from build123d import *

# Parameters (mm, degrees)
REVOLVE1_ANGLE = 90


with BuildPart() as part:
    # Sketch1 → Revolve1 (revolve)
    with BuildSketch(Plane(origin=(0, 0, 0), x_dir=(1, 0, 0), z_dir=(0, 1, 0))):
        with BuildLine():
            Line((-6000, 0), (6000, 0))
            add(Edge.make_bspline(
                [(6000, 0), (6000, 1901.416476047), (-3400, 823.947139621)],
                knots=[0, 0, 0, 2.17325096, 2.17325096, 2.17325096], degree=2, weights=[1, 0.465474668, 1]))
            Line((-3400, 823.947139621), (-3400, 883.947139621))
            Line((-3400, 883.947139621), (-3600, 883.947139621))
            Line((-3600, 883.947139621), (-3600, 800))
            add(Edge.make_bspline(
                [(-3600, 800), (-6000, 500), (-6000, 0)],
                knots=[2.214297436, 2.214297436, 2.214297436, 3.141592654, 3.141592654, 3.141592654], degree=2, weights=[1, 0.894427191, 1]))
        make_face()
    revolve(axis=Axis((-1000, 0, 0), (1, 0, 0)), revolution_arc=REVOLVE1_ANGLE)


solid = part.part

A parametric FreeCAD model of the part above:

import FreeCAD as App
import Part
import Sketcher
from FreeCAD import Vector
Q = App.Units.Quantity

doc = App.newDocument("Part")
body = doc.addObject("PartDesign::Body", "Body")

# Sketch on XZ plane
sketch1 = body.newObject("Sketcher::SketchObject", "Sketch")
sketch1.AttachmentSupport = (doc.getObject("XZ_Plane"), [""])
sketch1.MapMode = "FlatFace"
sketch1.addGeometry([
    Part.LineSegment(Vector(-6000, 0, 0), Vector(6000, 0, 0)),  # 0
    Part.BSplineCurve([Vector(6000, 0, 0), Vector(6000, -1901.416476, 0), Vector(-3400, -823.94714, 0)], [3, 3], [0, 2.17325096], False, 2, [1, 0.465474668, 1], False),  # 1
    Part.LineSegment(Vector(-3400, -823.94714, 0), Vector(-3400, -883.94714, 0)),  # 2
    Part.LineSegment(Vector(-3400, -883.94714, 0), Vector(-3600, -883.94714, 0)),  # 3
    Part.LineSegment(Vector(-3600, -883.94714, 0), Vector(-3600, -800, 0)),  # 4
    Part.BSplineCurve([Vector(-3600, -800, 0), Vector(-6000, -500, 0), Vector(-6000, 0, 0)], [3, 3], [2.214297436, 3.141592654], False, 2, [1, 0.894427191, 1], False),  # 5
], False)
sketch1.addConstraint([
    Sketcher.Constraint("Block", 1),
    Sketcher.Constraint("Block", 5),
    Sketcher.Constraint("Coincident", 0, 2, 1, 1),
    Sketcher.Constraint("Coincident", 1, 2, 2, 1),
    Sketcher.Constraint("Coincident", 2, 2, 3, 1),
    Sketcher.Constraint("Coincident", 3, 2, 4, 1),
    Sketcher.Constraint("Coincident", 4, 2, 5, 1),
    Sketcher.Constraint("Coincident", 5, 2, 0, 1),
    Sketcher.Constraint("Vertical", 2),
    Sketcher.Constraint("Horizontal", 3),
    Sketcher.Constraint("Vertical", 4),
    Sketcher.Constraint("DistanceY", 2, 2, 2, 1, Q("60 mm")),
])
revolution = body.newObject("PartDesign::Revolution", "Revolution")
revolution.Profile = sketch1
revolution.ReferenceAxis = (sketch1, ["H_Axis"])
revolution.Angle = 90

doc.recompute()
